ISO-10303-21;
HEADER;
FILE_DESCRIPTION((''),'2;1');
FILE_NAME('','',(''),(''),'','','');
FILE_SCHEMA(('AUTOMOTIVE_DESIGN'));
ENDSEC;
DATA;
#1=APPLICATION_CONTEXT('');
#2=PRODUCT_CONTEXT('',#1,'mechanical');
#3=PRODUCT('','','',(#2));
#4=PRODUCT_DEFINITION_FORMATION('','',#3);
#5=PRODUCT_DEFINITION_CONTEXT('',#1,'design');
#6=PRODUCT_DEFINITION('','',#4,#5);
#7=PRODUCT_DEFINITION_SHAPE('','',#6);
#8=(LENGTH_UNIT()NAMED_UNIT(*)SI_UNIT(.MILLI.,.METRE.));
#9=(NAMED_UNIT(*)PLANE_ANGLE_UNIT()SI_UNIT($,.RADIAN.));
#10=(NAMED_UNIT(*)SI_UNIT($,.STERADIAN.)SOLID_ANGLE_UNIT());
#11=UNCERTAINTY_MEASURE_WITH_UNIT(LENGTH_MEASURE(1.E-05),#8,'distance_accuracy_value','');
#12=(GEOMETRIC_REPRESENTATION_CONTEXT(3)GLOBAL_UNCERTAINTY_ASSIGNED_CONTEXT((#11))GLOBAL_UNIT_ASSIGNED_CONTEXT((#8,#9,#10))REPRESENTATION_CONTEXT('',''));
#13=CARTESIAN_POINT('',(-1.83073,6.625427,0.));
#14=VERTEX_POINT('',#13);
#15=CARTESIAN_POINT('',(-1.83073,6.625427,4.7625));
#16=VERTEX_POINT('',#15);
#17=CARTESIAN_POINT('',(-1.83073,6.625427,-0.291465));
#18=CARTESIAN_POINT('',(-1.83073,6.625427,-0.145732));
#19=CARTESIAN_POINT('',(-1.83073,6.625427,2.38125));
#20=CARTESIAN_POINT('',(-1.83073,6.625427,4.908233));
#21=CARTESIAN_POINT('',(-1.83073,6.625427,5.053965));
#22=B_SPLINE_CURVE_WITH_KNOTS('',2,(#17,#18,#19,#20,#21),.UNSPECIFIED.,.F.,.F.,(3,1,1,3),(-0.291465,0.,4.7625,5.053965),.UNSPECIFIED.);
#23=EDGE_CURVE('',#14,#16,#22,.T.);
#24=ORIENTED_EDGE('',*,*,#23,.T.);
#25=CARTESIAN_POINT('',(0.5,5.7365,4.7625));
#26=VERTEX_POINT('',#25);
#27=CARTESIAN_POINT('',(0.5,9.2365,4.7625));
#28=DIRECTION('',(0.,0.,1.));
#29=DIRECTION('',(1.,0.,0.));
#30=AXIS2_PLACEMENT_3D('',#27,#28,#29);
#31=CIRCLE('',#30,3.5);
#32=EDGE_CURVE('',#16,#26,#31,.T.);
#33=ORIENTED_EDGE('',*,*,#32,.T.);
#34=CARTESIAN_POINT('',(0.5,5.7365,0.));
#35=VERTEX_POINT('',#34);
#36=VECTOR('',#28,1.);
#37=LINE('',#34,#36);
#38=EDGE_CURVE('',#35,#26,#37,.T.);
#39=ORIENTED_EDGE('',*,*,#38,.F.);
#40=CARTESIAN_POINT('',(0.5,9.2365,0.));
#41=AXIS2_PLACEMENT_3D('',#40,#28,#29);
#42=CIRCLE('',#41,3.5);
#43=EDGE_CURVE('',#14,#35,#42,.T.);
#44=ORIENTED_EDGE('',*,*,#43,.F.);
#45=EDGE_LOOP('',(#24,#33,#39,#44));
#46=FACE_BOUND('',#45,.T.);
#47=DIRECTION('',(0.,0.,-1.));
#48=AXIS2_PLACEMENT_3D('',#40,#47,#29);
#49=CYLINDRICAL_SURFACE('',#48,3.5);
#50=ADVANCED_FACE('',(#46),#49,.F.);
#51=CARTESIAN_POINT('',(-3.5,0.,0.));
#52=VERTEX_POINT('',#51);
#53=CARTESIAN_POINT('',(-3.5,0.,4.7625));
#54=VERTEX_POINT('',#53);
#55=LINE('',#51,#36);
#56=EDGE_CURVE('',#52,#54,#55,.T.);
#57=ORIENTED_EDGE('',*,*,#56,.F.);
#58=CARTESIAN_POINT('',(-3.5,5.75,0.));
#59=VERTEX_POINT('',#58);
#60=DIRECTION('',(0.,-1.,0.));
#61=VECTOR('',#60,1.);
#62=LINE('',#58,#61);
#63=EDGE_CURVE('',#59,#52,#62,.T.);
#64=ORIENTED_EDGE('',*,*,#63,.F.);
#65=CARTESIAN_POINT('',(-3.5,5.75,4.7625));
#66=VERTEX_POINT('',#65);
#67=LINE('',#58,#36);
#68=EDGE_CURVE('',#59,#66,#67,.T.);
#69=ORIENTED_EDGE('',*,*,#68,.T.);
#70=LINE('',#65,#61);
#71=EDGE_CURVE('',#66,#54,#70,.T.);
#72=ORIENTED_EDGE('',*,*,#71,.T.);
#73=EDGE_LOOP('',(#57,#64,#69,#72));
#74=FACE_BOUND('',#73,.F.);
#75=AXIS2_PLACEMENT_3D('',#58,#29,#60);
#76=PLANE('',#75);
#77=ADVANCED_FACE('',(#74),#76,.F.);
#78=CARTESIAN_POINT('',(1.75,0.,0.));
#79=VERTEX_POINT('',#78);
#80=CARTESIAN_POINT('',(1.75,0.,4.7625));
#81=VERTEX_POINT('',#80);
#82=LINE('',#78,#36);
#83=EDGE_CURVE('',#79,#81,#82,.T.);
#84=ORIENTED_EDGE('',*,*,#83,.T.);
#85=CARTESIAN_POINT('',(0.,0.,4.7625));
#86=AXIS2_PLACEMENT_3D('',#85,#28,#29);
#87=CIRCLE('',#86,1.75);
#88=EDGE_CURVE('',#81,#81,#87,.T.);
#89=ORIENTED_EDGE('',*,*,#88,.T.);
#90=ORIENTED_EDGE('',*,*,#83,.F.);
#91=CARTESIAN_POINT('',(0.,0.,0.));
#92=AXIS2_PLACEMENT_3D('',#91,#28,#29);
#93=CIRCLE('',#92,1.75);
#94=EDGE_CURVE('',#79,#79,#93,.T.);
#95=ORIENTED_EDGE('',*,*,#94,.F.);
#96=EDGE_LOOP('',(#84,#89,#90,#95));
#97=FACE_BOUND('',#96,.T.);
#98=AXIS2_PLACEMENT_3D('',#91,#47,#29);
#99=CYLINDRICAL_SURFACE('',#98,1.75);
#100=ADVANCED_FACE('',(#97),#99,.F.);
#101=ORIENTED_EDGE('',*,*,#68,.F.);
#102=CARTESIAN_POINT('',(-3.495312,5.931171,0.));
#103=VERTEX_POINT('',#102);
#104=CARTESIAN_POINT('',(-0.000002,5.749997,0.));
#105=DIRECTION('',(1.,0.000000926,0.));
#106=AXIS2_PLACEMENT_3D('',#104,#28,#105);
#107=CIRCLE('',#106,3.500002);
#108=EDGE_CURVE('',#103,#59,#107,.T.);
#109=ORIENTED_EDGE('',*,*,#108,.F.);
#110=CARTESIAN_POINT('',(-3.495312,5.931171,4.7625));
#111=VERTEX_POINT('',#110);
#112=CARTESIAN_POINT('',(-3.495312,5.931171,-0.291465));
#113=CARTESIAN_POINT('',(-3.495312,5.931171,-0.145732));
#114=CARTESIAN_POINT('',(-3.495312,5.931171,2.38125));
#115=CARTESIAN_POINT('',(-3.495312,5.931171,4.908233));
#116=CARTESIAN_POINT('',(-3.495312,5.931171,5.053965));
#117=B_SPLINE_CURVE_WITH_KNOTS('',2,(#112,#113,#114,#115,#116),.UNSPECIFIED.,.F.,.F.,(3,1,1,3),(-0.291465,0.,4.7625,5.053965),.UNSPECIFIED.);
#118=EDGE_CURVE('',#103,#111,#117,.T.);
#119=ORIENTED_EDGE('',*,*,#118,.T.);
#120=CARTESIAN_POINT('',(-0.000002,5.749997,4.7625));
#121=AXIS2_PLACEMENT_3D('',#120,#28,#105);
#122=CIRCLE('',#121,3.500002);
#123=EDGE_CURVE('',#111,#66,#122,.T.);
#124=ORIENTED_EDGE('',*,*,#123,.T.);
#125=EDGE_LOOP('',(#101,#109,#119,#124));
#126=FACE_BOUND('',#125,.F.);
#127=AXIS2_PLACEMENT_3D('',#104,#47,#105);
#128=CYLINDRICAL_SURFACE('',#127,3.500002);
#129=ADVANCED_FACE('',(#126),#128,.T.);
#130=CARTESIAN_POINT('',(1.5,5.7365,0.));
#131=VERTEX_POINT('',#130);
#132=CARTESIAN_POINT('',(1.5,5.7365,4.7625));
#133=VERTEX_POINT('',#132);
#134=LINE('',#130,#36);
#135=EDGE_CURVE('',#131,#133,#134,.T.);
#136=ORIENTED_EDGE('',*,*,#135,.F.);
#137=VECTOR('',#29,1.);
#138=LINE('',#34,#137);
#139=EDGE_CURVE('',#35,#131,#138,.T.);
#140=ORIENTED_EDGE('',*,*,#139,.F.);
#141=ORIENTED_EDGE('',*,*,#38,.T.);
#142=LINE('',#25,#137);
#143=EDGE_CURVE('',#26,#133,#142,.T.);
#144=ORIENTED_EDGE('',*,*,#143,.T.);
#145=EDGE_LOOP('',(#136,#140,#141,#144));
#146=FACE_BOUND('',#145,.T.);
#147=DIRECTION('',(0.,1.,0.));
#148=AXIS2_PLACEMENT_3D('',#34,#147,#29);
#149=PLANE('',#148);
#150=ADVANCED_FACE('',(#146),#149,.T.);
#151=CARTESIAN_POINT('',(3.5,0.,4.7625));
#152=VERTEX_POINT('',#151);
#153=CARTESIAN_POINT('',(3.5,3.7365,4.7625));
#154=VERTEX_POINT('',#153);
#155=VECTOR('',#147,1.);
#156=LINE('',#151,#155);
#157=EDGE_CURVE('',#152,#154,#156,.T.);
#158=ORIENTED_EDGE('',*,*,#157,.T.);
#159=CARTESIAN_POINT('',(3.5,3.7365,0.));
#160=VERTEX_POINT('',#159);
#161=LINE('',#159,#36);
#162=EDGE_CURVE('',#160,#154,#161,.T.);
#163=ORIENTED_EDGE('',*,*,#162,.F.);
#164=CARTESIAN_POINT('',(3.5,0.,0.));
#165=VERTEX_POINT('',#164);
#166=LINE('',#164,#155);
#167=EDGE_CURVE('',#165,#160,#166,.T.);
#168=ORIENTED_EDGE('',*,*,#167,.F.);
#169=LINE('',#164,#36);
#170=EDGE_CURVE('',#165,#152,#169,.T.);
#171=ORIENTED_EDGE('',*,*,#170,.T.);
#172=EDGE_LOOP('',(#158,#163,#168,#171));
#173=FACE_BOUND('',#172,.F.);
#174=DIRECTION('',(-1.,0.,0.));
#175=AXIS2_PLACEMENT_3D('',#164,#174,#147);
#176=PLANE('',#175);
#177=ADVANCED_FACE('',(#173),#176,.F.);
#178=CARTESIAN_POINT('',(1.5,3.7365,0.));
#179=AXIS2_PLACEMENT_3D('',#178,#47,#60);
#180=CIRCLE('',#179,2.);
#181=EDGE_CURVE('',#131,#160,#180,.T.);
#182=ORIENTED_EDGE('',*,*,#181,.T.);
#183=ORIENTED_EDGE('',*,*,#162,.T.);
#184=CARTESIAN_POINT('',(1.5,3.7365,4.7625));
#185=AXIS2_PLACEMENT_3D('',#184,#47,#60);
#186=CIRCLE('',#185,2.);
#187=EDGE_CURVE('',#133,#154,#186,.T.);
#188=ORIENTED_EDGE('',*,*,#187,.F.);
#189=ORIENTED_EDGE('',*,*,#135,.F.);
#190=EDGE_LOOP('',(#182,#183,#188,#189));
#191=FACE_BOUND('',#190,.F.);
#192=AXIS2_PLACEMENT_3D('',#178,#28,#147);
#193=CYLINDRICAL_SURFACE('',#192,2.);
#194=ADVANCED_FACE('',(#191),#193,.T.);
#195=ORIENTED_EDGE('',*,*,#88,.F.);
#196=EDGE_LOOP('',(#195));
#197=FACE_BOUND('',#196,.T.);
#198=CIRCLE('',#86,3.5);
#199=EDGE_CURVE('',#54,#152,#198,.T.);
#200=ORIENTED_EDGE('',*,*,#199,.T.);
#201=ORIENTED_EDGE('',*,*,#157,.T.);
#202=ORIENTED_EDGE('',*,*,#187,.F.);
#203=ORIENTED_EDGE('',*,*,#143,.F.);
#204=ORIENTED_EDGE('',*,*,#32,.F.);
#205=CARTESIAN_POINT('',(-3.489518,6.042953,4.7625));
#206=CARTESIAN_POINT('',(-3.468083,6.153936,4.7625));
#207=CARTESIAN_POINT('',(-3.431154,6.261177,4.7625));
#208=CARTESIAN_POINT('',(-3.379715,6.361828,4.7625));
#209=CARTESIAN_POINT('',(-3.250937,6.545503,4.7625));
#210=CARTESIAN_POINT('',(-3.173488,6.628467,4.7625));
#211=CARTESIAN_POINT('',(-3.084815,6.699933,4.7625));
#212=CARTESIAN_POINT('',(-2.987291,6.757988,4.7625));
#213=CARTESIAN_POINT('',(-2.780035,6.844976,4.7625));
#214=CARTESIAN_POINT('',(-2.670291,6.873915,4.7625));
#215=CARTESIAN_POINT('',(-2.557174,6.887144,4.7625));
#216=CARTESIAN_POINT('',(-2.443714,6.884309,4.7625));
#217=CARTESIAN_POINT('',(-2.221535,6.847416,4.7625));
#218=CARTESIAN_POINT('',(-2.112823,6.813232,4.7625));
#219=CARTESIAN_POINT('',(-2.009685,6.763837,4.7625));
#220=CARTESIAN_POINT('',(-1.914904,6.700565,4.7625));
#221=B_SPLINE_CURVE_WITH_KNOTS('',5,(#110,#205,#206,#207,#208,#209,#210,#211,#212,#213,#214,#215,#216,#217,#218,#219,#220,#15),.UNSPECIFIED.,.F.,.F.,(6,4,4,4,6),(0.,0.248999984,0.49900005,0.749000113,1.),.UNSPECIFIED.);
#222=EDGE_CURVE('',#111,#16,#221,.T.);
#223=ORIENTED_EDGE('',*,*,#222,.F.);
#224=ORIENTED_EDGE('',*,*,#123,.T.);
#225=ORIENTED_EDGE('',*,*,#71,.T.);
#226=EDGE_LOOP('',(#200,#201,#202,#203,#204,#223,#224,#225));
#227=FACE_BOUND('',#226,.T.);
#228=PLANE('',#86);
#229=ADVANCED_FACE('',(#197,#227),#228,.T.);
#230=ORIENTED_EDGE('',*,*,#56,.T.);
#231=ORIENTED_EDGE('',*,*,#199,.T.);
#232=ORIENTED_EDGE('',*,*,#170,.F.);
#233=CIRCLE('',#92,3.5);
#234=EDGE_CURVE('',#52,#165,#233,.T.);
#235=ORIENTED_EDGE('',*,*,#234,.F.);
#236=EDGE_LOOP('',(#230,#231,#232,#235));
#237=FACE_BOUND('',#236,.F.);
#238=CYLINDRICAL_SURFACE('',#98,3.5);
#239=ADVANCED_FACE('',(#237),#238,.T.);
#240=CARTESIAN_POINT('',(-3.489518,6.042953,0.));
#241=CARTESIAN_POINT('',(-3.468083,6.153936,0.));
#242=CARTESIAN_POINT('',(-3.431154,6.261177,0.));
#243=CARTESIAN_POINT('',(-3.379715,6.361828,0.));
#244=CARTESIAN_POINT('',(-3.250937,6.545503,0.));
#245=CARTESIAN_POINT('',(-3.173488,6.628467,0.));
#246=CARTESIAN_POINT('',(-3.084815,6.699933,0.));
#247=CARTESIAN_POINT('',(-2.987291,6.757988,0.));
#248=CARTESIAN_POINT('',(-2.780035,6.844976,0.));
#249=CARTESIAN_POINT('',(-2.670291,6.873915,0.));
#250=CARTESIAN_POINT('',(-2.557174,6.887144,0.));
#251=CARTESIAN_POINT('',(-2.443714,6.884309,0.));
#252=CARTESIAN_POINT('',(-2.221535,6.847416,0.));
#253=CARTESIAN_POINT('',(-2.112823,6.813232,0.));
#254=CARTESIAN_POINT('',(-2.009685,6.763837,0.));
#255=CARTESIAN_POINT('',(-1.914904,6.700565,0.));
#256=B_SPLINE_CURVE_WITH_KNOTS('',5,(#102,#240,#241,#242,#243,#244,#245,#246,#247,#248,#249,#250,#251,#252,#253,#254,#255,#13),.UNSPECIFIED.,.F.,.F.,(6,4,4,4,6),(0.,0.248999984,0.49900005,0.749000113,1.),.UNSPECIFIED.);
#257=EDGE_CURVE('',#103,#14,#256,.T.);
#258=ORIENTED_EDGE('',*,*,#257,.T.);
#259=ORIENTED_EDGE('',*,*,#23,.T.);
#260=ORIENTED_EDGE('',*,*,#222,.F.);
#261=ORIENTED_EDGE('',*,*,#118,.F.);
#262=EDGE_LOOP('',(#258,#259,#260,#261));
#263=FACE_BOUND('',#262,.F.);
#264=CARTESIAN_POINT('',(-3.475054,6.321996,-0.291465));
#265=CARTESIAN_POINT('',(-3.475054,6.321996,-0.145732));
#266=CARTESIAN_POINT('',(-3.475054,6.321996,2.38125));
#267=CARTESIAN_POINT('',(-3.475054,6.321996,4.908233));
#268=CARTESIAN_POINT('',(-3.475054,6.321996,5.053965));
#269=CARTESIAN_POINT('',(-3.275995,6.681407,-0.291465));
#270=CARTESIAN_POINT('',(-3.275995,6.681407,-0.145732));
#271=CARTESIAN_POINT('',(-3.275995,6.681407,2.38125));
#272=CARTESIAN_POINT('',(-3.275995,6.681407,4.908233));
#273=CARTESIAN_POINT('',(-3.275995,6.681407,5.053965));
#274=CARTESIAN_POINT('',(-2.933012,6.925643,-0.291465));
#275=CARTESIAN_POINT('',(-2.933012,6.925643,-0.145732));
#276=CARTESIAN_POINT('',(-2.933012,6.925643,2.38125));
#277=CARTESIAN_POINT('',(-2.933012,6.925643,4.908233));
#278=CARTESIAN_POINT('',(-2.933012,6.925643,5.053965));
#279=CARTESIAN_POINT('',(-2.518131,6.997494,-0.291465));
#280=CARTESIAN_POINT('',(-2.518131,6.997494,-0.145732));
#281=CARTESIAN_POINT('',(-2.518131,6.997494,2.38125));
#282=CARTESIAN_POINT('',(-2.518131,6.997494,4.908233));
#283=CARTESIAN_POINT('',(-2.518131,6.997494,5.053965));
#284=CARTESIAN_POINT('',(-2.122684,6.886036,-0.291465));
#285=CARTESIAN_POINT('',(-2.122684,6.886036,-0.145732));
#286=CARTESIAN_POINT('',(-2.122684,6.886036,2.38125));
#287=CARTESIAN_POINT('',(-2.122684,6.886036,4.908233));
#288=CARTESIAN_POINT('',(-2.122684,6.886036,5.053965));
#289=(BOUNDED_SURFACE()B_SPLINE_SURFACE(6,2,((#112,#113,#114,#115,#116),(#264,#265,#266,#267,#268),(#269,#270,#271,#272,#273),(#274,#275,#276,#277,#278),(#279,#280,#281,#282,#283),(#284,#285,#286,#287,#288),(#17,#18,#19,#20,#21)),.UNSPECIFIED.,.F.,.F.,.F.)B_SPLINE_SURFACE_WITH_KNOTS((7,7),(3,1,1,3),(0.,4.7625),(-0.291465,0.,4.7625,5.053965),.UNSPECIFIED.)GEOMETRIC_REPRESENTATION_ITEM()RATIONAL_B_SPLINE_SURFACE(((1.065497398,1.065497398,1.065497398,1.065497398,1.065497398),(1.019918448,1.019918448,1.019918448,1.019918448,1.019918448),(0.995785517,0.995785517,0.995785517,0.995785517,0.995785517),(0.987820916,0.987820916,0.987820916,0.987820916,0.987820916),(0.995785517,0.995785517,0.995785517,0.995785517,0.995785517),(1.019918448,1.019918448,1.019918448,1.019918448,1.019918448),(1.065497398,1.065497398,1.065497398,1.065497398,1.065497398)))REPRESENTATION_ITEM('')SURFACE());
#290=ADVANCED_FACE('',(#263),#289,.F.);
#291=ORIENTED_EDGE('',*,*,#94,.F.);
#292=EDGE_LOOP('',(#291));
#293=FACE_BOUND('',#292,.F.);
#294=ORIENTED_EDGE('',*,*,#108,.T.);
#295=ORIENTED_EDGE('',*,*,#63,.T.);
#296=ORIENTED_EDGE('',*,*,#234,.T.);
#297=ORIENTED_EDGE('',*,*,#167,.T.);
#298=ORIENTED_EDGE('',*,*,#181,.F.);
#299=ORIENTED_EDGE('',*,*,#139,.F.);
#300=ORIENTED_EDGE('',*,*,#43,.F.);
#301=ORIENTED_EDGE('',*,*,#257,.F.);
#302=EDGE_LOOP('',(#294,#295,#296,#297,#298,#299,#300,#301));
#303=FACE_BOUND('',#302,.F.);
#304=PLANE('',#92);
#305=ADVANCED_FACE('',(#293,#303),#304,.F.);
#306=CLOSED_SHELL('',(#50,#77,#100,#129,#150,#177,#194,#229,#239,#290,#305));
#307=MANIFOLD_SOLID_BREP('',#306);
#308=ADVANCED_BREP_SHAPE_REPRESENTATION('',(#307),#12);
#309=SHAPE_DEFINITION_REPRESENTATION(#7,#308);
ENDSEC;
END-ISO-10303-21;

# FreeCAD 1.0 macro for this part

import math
import FreeCAD as App
import Part
import Sketcher


def edges_at(feature, points):
    """Names of the edges that pass closest to the given points."""
    edges = feature.Shape.Edges
    near = lambda p: min(range(len(edges)), key=lambda i: edges[i].distToShape(Part.Vertex(*p))[0])
    return sorted({f"Edge{near(p) + 1}" for p in points})

doc = App.newDocument("Part")
body = doc.addObject("PartDesign::Body", "Body")

sketch1 = doc.addObject("Sketcher::SketchObject", "Sketch")
body.addObject(sketch1)
sketch1.AttachmentSupport = (doc.XY_Plane, [""])
sketch1.MapMode = "FlatFace"
sketch1.addGeometry([
    Part.ArcOfCircle(Part.Circle(App.Vector(0, 0, 0), App.Vector(0, 0, 1), 3.5), math.radians(180), math.radians(360)),
    Part.LineSegment(App.Vector(3.5, 0, 0), App.Vector(3.5, 5.7, 0)),
    Part.LineSegment(App.Vector(3.5, 5.7, 0), App.Vector(0.5, 5.7, 0)),
    Part.ArcOfCircle(Part.Circle(App.Vector(0.5, 9.2, 0), App.Vector(0, 0, 1), 3.5), math.radians(-158), math.radians(-90)),
    Part.ArcOfCircle(Part.Circle(App.Vector(0, 5.8, 0), App.Vector(0, 0, 1), 3.5), math.radians(142), math.radians(180)),
    Part.LineSegment(App.Vector(-3.5, 5.8, 0), App.Vector(-3.5, 0, 0)),
    Part.Circle(App.Vector(0, 0, 0), App.Vector(0, 0, 1), 1.8),
], False)
sketch1.addConstraint([
    Sketcher.Constraint("Tangent", 0, 2, 1, 1),
    Sketcher.Constraint("Coincident", 1, 2, 2, 1),
    Sketcher.Constraint("Tangent", 2, 2, 3, 2),
    Sketcher.Constraint("Coincident", 3, 1, 4, 1),
    Sketcher.Constraint("Tangent", 4, 2, 5, 1),
    Sketcher.Constraint("Tangent", 5, 2, 0, 1),
    Sketcher.Constraint("Vertical", 1),
    Sketcher.Constraint("Horizontal", 2),
    Sketcher.Constraint("Vertical", 5),
    Sketcher.Constraint("Coincident", 0, 3, -1, 1),
    Sketcher.Constraint("Coincident", 6, 3, -1, 1),
    Sketcher.Constraint("Equal", 0, 3),
    Sketcher.Constraint("Equal", 3, 4),
    Sketcher.Constraint("Diameter", 6, 3.5),
    Sketcher.Constraint("Radius", 0, 3.5),
    Sketcher.Constraint("DistanceX", -1, 1, 3, 3, 0.5),
    Sketcher.Constraint("DistanceY", 5, 2, 5, 1, 5.75),
    Sketcher.Constraint("DistanceY", 1, 1, 1, 2, 5.7365),
])
pad1 = doc.addObject("PartDesign::Pad", "Pad")
body.addObject(pad1)
pad1.Profile = sketch1
pad1.Length = 4.7625
doc.recompute()

fillet = doc.addObject("PartDesign::Fillet", "Fillet")
body.addObject(fillet)
fillet.Base = (pad1, edges_at(pad1, [(-2.744, 7.923, 2.381)]))
fillet.Radius = 1
doc.recompute()

fillet2 = doc.addObject("PartDesign::Fillet", "Fillet001")
body.addObject(fillet2)
fillet2.Base = (fillet, edges_at(fillet, [(3.5, 5.737, 2.381)]))
fillet2.Radius = 2

doc.recompute()
